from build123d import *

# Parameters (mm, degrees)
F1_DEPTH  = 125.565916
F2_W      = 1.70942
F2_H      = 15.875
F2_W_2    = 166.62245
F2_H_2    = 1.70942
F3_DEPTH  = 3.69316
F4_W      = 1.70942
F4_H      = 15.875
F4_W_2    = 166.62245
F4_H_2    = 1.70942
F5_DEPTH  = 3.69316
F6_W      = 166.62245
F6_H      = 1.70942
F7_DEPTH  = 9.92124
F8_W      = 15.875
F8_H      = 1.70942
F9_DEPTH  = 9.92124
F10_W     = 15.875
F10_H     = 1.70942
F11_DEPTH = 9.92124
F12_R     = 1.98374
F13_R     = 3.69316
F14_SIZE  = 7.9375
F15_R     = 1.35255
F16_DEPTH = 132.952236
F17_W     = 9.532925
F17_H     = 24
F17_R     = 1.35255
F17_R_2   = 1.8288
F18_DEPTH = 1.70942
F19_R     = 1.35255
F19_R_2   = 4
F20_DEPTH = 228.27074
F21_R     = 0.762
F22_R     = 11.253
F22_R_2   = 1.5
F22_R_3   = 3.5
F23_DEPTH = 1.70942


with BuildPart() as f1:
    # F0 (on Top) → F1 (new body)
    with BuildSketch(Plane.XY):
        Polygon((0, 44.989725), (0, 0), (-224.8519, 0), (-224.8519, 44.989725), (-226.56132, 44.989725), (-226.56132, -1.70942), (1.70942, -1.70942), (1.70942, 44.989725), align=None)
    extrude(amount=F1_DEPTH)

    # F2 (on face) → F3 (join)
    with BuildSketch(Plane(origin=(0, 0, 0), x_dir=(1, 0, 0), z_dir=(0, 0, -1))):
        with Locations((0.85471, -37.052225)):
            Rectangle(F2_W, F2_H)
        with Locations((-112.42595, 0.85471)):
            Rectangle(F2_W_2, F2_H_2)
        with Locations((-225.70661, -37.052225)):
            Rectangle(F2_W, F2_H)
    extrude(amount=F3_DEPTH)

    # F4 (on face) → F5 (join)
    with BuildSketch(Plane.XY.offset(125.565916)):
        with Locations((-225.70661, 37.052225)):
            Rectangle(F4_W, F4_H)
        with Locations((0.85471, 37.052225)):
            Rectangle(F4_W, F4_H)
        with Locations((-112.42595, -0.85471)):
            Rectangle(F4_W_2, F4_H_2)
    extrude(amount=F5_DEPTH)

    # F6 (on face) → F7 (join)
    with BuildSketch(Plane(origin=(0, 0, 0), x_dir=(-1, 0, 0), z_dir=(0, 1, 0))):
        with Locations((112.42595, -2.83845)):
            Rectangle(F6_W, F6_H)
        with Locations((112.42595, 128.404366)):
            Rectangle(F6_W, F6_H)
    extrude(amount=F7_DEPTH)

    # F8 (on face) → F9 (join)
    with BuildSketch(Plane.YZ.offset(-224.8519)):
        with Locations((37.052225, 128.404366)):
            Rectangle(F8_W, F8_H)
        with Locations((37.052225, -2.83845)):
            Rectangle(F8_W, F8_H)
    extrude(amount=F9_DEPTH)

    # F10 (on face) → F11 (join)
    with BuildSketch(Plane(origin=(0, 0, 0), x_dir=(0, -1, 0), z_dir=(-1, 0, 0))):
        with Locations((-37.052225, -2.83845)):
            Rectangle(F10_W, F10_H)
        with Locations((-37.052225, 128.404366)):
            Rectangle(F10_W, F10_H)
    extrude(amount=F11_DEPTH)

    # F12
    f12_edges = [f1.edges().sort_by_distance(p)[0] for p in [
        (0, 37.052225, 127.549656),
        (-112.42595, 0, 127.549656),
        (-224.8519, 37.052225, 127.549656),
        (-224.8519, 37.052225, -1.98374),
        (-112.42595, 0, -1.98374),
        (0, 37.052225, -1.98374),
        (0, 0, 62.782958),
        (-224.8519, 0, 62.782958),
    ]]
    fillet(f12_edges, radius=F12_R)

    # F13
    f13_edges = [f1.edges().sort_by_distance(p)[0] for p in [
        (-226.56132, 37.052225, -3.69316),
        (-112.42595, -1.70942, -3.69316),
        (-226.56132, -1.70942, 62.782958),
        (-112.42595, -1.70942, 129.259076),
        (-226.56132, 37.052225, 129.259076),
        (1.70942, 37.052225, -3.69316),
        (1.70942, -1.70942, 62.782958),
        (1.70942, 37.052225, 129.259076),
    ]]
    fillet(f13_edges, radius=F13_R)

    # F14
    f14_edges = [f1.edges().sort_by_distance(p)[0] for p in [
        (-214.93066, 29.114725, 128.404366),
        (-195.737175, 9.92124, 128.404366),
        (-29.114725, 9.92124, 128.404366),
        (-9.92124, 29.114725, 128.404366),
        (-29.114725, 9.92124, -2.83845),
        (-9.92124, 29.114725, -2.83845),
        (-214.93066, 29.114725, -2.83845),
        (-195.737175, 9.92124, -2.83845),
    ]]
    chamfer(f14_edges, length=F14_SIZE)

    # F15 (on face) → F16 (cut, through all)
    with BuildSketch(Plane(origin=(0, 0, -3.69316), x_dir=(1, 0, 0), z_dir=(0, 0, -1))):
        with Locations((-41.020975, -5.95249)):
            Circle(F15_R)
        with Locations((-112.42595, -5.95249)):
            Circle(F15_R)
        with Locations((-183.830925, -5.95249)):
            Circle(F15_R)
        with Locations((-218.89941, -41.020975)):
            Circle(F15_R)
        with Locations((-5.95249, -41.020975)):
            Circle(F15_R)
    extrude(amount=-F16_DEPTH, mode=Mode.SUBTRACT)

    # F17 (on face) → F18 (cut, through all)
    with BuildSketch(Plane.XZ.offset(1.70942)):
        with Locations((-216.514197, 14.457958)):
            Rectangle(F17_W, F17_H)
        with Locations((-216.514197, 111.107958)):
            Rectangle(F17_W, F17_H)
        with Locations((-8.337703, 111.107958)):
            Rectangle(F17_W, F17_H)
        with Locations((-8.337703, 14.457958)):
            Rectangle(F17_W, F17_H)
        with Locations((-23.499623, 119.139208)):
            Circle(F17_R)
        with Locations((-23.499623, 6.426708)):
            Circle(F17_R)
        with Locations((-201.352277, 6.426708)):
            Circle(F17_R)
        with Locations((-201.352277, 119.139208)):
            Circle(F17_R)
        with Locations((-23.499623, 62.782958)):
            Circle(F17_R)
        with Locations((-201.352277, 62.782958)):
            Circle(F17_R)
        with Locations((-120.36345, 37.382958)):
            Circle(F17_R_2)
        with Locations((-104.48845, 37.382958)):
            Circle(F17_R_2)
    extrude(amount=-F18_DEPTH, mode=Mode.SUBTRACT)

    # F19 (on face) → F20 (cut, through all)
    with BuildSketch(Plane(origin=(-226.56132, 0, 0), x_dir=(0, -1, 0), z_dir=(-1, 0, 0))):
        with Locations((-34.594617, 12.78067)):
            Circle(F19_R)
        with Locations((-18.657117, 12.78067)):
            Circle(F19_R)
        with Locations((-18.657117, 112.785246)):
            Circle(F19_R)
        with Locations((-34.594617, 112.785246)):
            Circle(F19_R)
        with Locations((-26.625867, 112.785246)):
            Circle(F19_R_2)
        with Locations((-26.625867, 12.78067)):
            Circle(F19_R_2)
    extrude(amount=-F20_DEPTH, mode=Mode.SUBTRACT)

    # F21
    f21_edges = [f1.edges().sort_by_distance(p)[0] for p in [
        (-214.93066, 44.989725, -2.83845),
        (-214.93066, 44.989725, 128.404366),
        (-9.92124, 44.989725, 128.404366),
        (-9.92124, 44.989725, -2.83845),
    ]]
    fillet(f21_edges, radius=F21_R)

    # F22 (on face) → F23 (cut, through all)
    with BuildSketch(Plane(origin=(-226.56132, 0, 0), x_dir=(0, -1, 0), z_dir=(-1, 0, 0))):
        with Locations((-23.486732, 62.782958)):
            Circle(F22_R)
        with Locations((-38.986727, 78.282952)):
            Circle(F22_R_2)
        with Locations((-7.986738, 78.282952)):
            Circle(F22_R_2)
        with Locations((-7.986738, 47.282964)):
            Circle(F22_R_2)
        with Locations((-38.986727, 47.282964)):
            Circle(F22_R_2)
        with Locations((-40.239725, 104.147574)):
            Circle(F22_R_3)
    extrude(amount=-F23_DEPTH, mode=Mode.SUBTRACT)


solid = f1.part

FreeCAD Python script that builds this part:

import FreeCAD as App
import Part
import Sketcher
Q = App.Units.Quantity


def edges_at(feature, points):
    """Names of the edges that pass closest to the given points."""
    edges = feature.Shape.Edges
    near = lambda p: min(range(len(edges)), key=lambda i: edges[i].distToShape(Part.Vertex(*p))[0])
    return sorted({f"Edge{near(p) + 1}" for p in points})

doc = App.newDocument("Part")
params = doc.addObject("Spreadsheet::Sheet", "Params")
for row, (alias, value) in enumerate([
    ("pad1_length", "125.565916 mm"),
    ("pad2_length", "3.69316 mm"),
    ("pad3_length", "3.69316 mm"),
    ("pad4_length", "9.92124 mm"),
    ("pad5_length", "9.92124 mm"),
    ("pad6_length", "9.92124 mm"),
    ("fillet_radius", "1.98374 mm"),
    ("fillet2_radius", "3.69316 mm"),
    ("chamfer_size", "7.9375 mm"),
    ("sketch8_height", "24 mm"),
    ("sketch9_diameter", "8 mm"),
    ("fillet3_radius", "0.762 mm"),
    ("sketch10_diameter", "3 mm"),
    ("sketch10_diameter2", "7 mm"),
    ("pocket4_length", "1.70942 mm"),
], start=1):
    params.set(f"A{row}", alias)
    params.set(f"B{row}", "=" + value)
    params.setAlias(f"B{row}", alias)

body = doc.addObject("PartDesign::Body", "Body")

# Sketch on XY plane
sketch1 = body.newObject("Sketcher::SketchObject", "Sketch")
sketch1.AttachmentSupport = (doc.getObject("XY_Plane"), [""])
sketch1.MapMode = "FlatFace"
sketch1.addGeometry(Part.LineSegment(App.Vector(0, 45, 0), App.Vector(0, 0, 0)), False)
sketch1.addGeometry(Part.LineSegment(App.Vector(0, 0, 0), App.Vector(-224.9, 0, 0)), False)
sketch1.addGeometry(Part.LineSegment(App.Vector(-224.9, 0, 0), App.Vector(-224.9, 45, 0)), False)
sketch1.addGeometry(Part.LineSegment(App.Vector(-224.9, 45, 0), App.Vector(-226.6, 45, 0)), False)
sketch1.addGeometry(Part.LineSegment(App.Vector(-226.6, 45, 0), App.Vector(-226.6, -1.7, 0)), False)
sketch1.addGeometry(Part.LineSegment(App.Vector(-226.6, -1.7, 0), App.Vector(1.7, -1.7, 0)), False)
sketch1.addGeometry(Part.LineSegment(App.Vector(1.7, -1.7, 0), App.Vector(1.7, 45, 0)), False)
sketch1.addGeometry(Part.LineSegment(App.Vector(1.7, 45, 0), App.Vector(0, 45, 0)), False)
sketch1.addConstraint(Sketcher.Constraint("Coincident", 0, 2, 1, 1))
sketch1.addConstraint(Sketcher.Constraint("Coincident", 1, 2, 2, 1))
sketch1.addConstraint(Sketcher.Constraint("Coincident", 2, 2, 3, 1))
sketch1.addConstraint(Sketcher.Constraint("Coincident", 3, 2, 4, 1))
sketch1.addConstraint(Sketcher.Constraint("Coincident", 4, 2, 5, 1))
sketch1.addConstraint(Sketcher.Constraint("Coincident", 5, 2, 6, 1))
sketch1.addConstraint(Sketcher.Constraint("Coincident", 6, 2, 7, 1))
sketch1.addConstraint(Sketcher.Constraint("Coincident", 7, 2, 0, 1))
sketch1.addConstraint(Sketcher.Constraint("Vertical", 0))
sketch1.addConstraint(Sketcher.Constraint("Horizontal", 1))
sketch1.addConstraint(Sketcher.Constraint("Vertical", 2))
sketch1.addConstraint(Sketcher.Constraint("Horizontal", 3))
sketch1.addConstraint(Sketcher.Constraint("Vertical", 4))
sketch1.addConstraint(Sketcher.Constraint("Horizontal", 5))
sketch1.addConstraint(Sketcher.Constraint("Vertical", 6))
sketch1.addConstraint(Sketcher.Constraint("Horizontal", 7))
sketch1.addConstraint(Sketcher.Constraint("Coincident", 0, 2, -1, 1))
sketch1.addConstraint(Sketcher.Constraint("Horizontal", 3, 2, 6, 2))
sketch1.addConstraint(Sketcher.Constraint("Equal", 3, 7))
sketch1.addConstraint(Sketcher.Constraint("DistanceX", 1, 2, 1, 1, Q("224.8519 mm")))
sketch1.addConstraint(Sketcher.Constraint("DistanceX", 3, 2, 3, 1, Q("1.70942 mm")))
sketch1.addConstraint(Sketcher.Constraint("DistanceY", 0, 2, 0, 1, Q("44.989725 mm")))
sketch1.addConstraint(Sketcher.Constraint("DistanceY", 4, 2, 4, 1, Q("46.699145 mm")))
pad1 = body.newObject("PartDesign::Pad", "Pad")
pad1.Profile = sketch1
pad1.setExpression("Length", "Params.pad1_length")

# Sketch on XY plane
sketch2 = body.newObject("Sketcher::SketchObject", "Sketch001")
sketch2.AttachmentSupport = (doc.getObject("XY_Plane"), [""])
sketch2.MapMode = "FlatFace"
sketch2.addGeometry(Part.LineSegment(App.Vector(0, 29.1, 0), App.Vector(0, 45, 0)), False)
sketch2.addGeometry(Part.LineSegment(App.Vector(0, 45, 0), App.Vector(1.7, 45, 0)), False)
sketch2.addGeometry(Part.LineSegment(App.Vector(1.7, 45, 0), App.Vector(1.7, 29.1, 0)), False)
sketch2.addGeometry(Part.LineSegment(App.Vector(1.7, 29.1, 0), App.Vector(0, 29.1, 0)), False)
sketch2.addGeometry(Part.LineSegment(App.Vector(-195.7, -1.7, 0), App.Vector(-195.7, 0, 0)), False)
sketch2.addGeometry(Part.LineSegment(App.Vector(-195.7, 0, 0), App.Vector(-29.1, 0, 0)), False)
sketch2.addGeometry(Part.LineSegment(App.Vector(-29.1, 0, 0), App.Vector(-29.1, -1.7, 0)), False)
sketch2.addGeometry(Part.LineSegment(App.Vector(-29.1, -1.7, 0), App.Vector(-195.7, -1.7, 0)), False)
sketch2.addGeometry(Part.LineSegment(App.Vector(-226.6, 29.1, 0), App.Vector(-226.6, 45, 0)), False)
sketch2.addGeometry(Part.LineSegment(App.Vector(-226.6, 45, 0), App.Vector(-224.9, 45, 0)), False)
sketch2.addGeometry(Part.LineSegment(App.Vector(-224.9, 45, 0), App.Vector(-224.9, 29.1, 0)), False)
sketch2.addGeometry(Part.LineSegment(App.Vector(-224.9, 29.1, 0), App.Vector(-226.6, 29.1, 0)), False)
sketch2.addConstraint(Sketcher.Constraint("Coincident", 0, 2, 1, 1))
sketch2.addConstraint(Sketcher.Constraint("Coincident", 1, 2, 2, 1))
sketch2.addConstraint(Sketcher.Constraint("Coincident", 2, 2, 3, 1))
sketch2.addConstraint(Sketcher.Constraint("Coincident", 3, 2, 0, 1))
sketch2.addConstraint(Sketcher.Constraint("Coincident", 4, 2, 5, 1))
sketch2.addConstraint(Sketcher.Constraint("Coincident", 5, 2, 6, 1))
sketch2.addConstraint(Sketcher.Constraint("Coincident", 6, 2, 7, 1))
sketch2.addConstraint(Sketcher.Constraint("Coincident", 7, 2, 4, 1))
sketch2.addConstraint(Sketcher.Constraint("Coincident", 8, 2, 9, 1))
sketch2.addConstraint(Sketcher.Constraint("Coincident", 9, 2, 10, 1))
sketch2.addConstraint(Sketcher.Constraint("Coincident", 10, 2, 11, 1))
sketch2.addConstraint(Sketcher.Constraint("Coincident", 11, 2, 8, 1))
sketch2.addConstraint(Sketcher.Constraint("Vertical", 0))
sketch2.addConstraint(Sketcher.Constraint("Horizontal", 1))
sketch2.addConstraint(Sketcher.Constraint("Vertical", 2))
sketch2.addConstraint(Sketcher.Constraint("Horizontal", 3))
sketch2.addConstraint(Sketcher.Constraint("Vertical", 4))
sketch2.addConstraint(Sketcher.Constraint("Horizontal", 5))
sketch2.addConstraint(Sketcher.Constraint("Vertical", 6))
sketch2.addConstraint(Sketcher.Constraint("Horizontal", 7))
sketch2.addConstraint(Sketcher.Constraint("Vertical", 8))
sketch2.addConstraint(Sketcher.Constraint("Horizontal", 9))
sketch2.addConstraint(Sketcher.Constraint("Vertical", 10))
sketch2.addConstraint(Sketcher.Constraint("Horizontal", 11))
sketch2.addConstraint(Sketcher.Constraint("PointOnObject", 0, 2, -2))
sketch2.addConstraint(Sketcher.Constraint("PointOnObject", 4, 2, -1))
sketch2.addConstraint(Sketcher.Constraint("Horizontal", 1, 2, 8, 2))
sketch2.addConstraint(Sketcher.Constraint("Horizontal", 3, 2, 10, 2))
sketch2.addConstraint(Sketcher.Constraint("Equal", 3, 9))
sketch2.addConstraint(Sketcher.Constraint("Equal", 11, 4))
sketch2.addConstraint(Sketcher.Constraint("DistanceY", 0, 1, 0, 2, Q("15.875 mm")))
sketch2.addConstraint(Sketcher.Constraint("DistanceX", 1, 1, 1, 2, Q("1.70942 mm")))
sketch2.addConstraint(Sketcher.Constraint("DistanceX", 5, 1, 5, 2, Q("166.62245 mm")))
sketch2.addConstraint(Sketcher.Constraint("DistanceX", 9, 2, -1, 1, Q("224.8519 mm")))
sketch2.addConstraint(Sketcher.Constraint("DistanceY", -1, 1, 0, 2, Q("44.989725 mm")))
sketch2.addConstraint(Sketcher.Constraint("DistanceX", 4, 2, -1, 1, Q("195.737175 mm")))
pad2 = body.newObject("PartDesign::Pad", "Pad001")
pad2.Profile = sketch2
pad2.setExpression("Length", "Params.pad2_length")
pad2.Reversed = True

# Sketch on XY plane
sketch3 = body.newObject("Sketcher::SketchObject", "Sketch002")
sketch3.AttachmentSupport = (doc.getObject("XY_Plane"), [""])
sketch3.MapMode = "FlatFace"
sketch3.AttachmentOffset = App.Placement(App.Vector(0, 0, 125.565916), App.Rotation())
sketch3.addGeometry(Part.LineSegment(App.Vector(-226.6, 45, 0), App.Vector(-226.6, 29.1, 0)), False)
sketch3.addGeometry(Part.LineSegment(App.Vector(-226.6, 29.1, 0), App.Vector(-224.9, 29.1, 0)), False)
sketch3.addGeometry(Part.LineSegment(App.Vector(-224.9, 29.1, 0), App.Vector(-224.9, 45, 0)), False)
sketch3.addGeometry(Part.LineSegment(App.Vector(-224.9, 45, 0), App.Vector(-226.6, 45, 0)), False)
sketch3.addGeometry(Part.LineSegment(App.Vector(0, 45, 0), App.Vector(0, 29.1, 0)), False)
sketch3.addGeometry(Part.LineSegment(App.Vector(0, 29.1, 0), App.Vector(1.7, 29.1, 0)), False)
sketch3.addGeometry(Part.LineSegment(App.Vector(1.7, 29.1, 0), App.Vector(1.7, 45, 0)), False)
sketch3.addGeometry(Part.LineSegment(App.Vector(1.7, 45, 0), App.Vector(0, 45, 0)), False)
sketch3.addGeometry(Part.LineSegment(App.Vector(-195.7, 0, 0), App.Vector(-195.7, -1.7, 0)), False)
sketch3.addGeometry(Part.LineSegment(App.Vector(-195.7, -1.7, 0), App.Vector(-29.1, -1.7, 0)), False)
sketch3.addGeometry(Part.LineSegment(App.Vector(-29.1, -1.7, 0), App.Vector(-29.1, 0, 0)), False)
sketch3.addGeometry(Part.LineSegment(App.Vector(-29.1, 0, 0), App.Vector(-195.7, 0, 0)), False)
sketch3.addConstraint(Sketcher.Constraint("Coincident", 0, 2, 1, 1))
sketch3.addConstraint(Sketcher.Constraint("Coincident", 1, 2, 2, 1))
sketch3.addConstraint(Sketcher.Constraint("Coincident", 2, 2, 3, 1))
sketch3.addConstraint(Sketcher.Constraint("Coincident", 3, 2, 0, 1))
sketch3.addConstraint(Sketcher.Constraint("Coincident", 4, 2, 5, 1))
sketch3.addConstraint(Sketcher.Constraint("Coincident", 5, 2, 6, 1))
sketch3.addConstraint(Sketcher.Constraint("Coincident", 6, 2, 7, 1))
sketch3.addConstraint(Sketcher.Constraint("Coincident", 7, 2, 4, 1))
sketch3.addConstraint(Sketcher.Constraint("Coincident", 8, 2, 9, 1))
sketch3.addConstraint(Sketcher.Constraint("Coincident", 9, 2, 10, 1))
sketch3.addConstraint(Sketcher.Constraint("Coincident", 10, 2, 11, 1))
sketch3.addConstraint(Sketcher.Constraint("Coincident", 11, 2, 8, 1))
sketch3.addConstraint(Sketcher.Constraint("Vertical", 0))
sketch3.addConstraint(Sketcher.Constraint("Horizontal", 1))
sketch3.addConstraint(Sketcher.Constraint("Vertical", 2))
sketch3.addConstraint(Sketcher.Constraint("Horizontal", 3))
sketch3.addConstraint(Sketcher.Constraint("Vertical", 4))
sketch3.addConstraint(Sketcher.Constraint("Horizontal", 5))
sketch3.addConstraint(Sketcher.Constraint("Vertical", 6))
sketch3.addConstraint(Sketcher.Constraint("Horizontal", 7))
sketch3.addConstraint(Sketcher.Constraint("Vertical", 8))
sketch3.addConstraint(Sketcher.Constraint("Horizontal", 9))
sketch3.addConstraint(Sketcher.Constraint("Vertical", 10))
sketch3.addConstraint(Sketcher.Constraint("Horizontal", 11))
sketch3.addConstraint(Sketcher.Constraint("PointOnObject", 4, 2, -2))
sketch3.addConstraint(Sketcher.Constraint("PointOnObject", 10, 2, -1))
sketch3.addConstraint(Sketcher.Constraint("Horizontal", 1, 2, 4, 2))
sketch3.addConstraint(Sketcher.Constraint("Horizontal", 3, 2, 6, 2))
sketch3.addConstraint(Sketcher.Constraint("Equal", 3, 5))
sketch3.addConstraint(Sketcher.Constraint("Equal", 7, 8))
sketch3.addConstraint(Sketcher.Constraint("DistanceY", 0, 2, 0, 1, Q("15.875 mm")))
sketch3.addConstraint(Sketcher.Constraint("DistanceX", 1, 1, 1, 2, Q("1.70942 mm")))
sketch3.addConstraint(Sketcher.Constraint("DistanceX", 9, 1, 9, 2, Q("166.62245 mm")))
sketch3.addConstraint(Sketcher.Constraint("DistanceX", 1, 2, -1, 1, Q("224.8519 mm")))
sketch3.addConstraint(Sketcher.Constraint("DistanceY", -1, 1, 0, 2, Q("29.114725 mm")))
sketch3.addConstraint(Sketcher.Constraint("DistanceX", 8, 2, -1, 1, Q("195.737175 mm")))
pad3 = body.newObject("PartDesign::Pad", "Pad002")
pad3.Profile = sketch3
pad3.setExpression("Length", "Params.pad3_length")

# Sketch on XZ plane
sketch4 = body.newObject("Sketcher::SketchObject", "Sketch003")
sketch4.AttachmentSupport = (doc.getObject("XZ_Plane"), [""])
sketch4.MapMode = "FlatFace"
sketch4.addGeometry(Part.LineSegment(App.Vector(-29.1, -2, 0), App.Vector(-29.1, -3.7, 0)), False)
sketch4.addGeometry(Part.LineSegment(App.Vector(-29.1, -3.7, 0), App.Vector(-195.7, -3.7, 0)), False)
sketch4.addGeometry(Part.LineSegment(App.Vector(-195.7, -3.7, 0), App.Vector(-195.7, -2, 0)), False)
sketch4.addGeometry(Part.LineSegment(App.Vector(-195.7, -2, 0), App.Vector(-29.1, -2, 0)), False)
sketch4.addGeometry(Part.LineSegment(App.Vector(-29.1, 129.3, 0), App.Vector(-29.1, 127.5, 0)), False)
sketch4.addGeometry(Part.LineSegment(App.Vector(-29.1, 127.5, 0), App.Vector(-195.7, 127.5, 0)), False)
sketch4.addGeometry(Part.LineSegment(App.Vector(-195.7, 127.5, 0), App.Vector(-195.7, 129.3, 0)), False)
sketch4.addGeometry(Part.LineSegment(App.Vector(-195.7, 129.3, 0), App.Vector(-29.1, 129.3, 0)), False)
sketch4.addConstraint(Sketcher.Constraint("Coincident", 0, 2, 1, 1))
sketch4.addConstraint(Sketcher.Constraint("Coincident", 1, 2, 2, 1))
sketch4.addConstraint(Sketcher.Constraint("Coincident", 2, 2, 3, 1))
sketch4.addConstraint(Sketcher.Constraint("Coincident", 3, 2, 0, 1))
sketch4.addConstraint(Sketcher.Constraint("Coincident", 4, 2, 5, 1))
sketch4.addConstraint(Sketcher.Constraint("Coincident", 5, 2, 6, 1))
sketch4.addConstraint(Sketcher.Constraint("Coincident", 6, 2, 7, 1))
sketch4.addConstraint(Sketcher.Constraint("Coincident", 7, 2, 4, 1))
sketch4.addConstraint(Sketcher.Constraint("Vertical", 0))
sketch4.addConstraint(Sketcher.Constraint("Horizontal", 1))
sketch4.addConstraint(Sketcher.Constraint("Vertical", 2))
sketch4.addConstraint(Sketcher.Constraint("Horizontal", 3))
sketch4.addConstraint(Sketcher.Constraint("Vertical", 4))
sketch4.addConstraint(Sketcher.Constraint("Horizontal", 5))
sketch4.addConstraint(Sketcher.Constraint("Vertical", 6))
sketch4.addConstraint(Sketcher.Constraint("Horizontal", 7))
sketch4.addConstraint(Sketcher.Constraint("Vertical", 3, 2, 4, 2))
sketch4.addConstraint(Sketcher.Constraint("Vertical", 2, 2, 5, 2))
sketch4.addConstraint(Sketcher.Constraint("Equal", 2, 4))
sketch4.addConstraint(Sketcher.Constraint("DistanceX", 1, 2, 1, 1, Q("166.62245 mm")))
sketch4.addConstraint(Sketcher.Constraint("DistanceY", 0, 2, 0, 1, Q("1.70942 mm")))
sketch4.addConstraint(Sketcher.Constraint("DistanceY", 0, 2, -1, 1, Q("3.69316 mm")))
sketch4.addConstraint(Sketcher.Constraint("DistanceX", 0, 2, -1, 1, Q("29.114725 mm")))
sketch4.addConstraint(Sketcher.Constraint("DistanceY", -1, 1, 4, 2, Q("127.549656 mm")))
pad4 = body.newObject("PartDesign::Pad", "Pad003")
pad4.Profile = sketch4
pad4.setExpression("Length", "Params.pad4_length")
pad4.Reversed = True

# Sketch on YZ plane
sketch5 = body.newObject("Sketcher::SketchObject", "Sketch004")
sketch5.AttachmentSupport = (doc.getObject("YZ_Plane"), [""])
sketch5.MapMode = "FlatFace"
sketch5.AttachmentOffset = App.Placement(App.Vector(0, 0, -224.8519), App.Rotation())
sketch5.addGeometry(Part.LineSegment(App.Vector(29.1, 129.3, 0), App.Vector(29.1, 127.5, 0)), False)
sketch5.addGeometry(Part.LineSegment(App.Vector(29.1, 127.5, 0), App.Vector(45, 127.5, 0)), False)
sketch5.addGeometry(Part.LineSegment(App.Vector(45, 127.5, 0), App.Vector(45, 129.3, 0)), False)
sketch5.addGeometry(Part.LineSegment(App.Vector(45, 129.3, 0), App.Vector(29.1, 129.3, 0)), False)
sketch5.addGeometry(Part.LineSegment(App.Vector(29.1, -2, 0), App.Vector(29.1, -3.7, 0)), False)
sketch5.addGeometry(Part.LineSegment(App.Vector(29.1, -3.7, 0), App.Vector(45, -3.7, 0)), False)
sketch5.addGeometry(Part.LineSegment(App.Vector(45, -3.7, 0), App.Vector(45, -2, 0)), False)
sketch5.addGeometry(Part.LineSegment(App.Vector(45, -2, 0), App.Vector(29.1, -2, 0)), False)
sketch5.addConstraint(Sketcher.Constraint("Coincident", 0, 2, 1, 1))
sketch5.addConstraint(Sketcher.Constraint("Coincident", 1, 2, 2, 1))
sketch5.addConstraint(Sketcher.Constraint("Coincident", 2, 2, 3, 1))
sketch5.addConstraint(Sketcher.Constraint("Coincident", 3, 2, 0, 1))
sketch5.addConstraint(Sketcher.Constraint("Coincident", 4, 2, 5, 1))
sketch5.addConstraint(Sketcher.Constraint("Coincident", 5, 2, 6, 1))
sketch5.addConstraint(Sketcher.Constraint("Coincident", 6, 2, 7, 1))
sketch5.addConstraint(Sketcher.Constraint("Coincident", 7, 2, 4, 1))
sketch5.addConstraint(Sketcher.Constraint("Vertical", 0))
sketch5.addConstraint(Sketcher.Constraint("Horizontal", 1))
sketch5.addConstraint(Sketcher.Constraint("Vertical", 2))
sketch5.addConstraint(Sketcher.Constraint("Horizontal", 3))
sketch5.addConstraint(Sketcher.Constraint("Vertical", 4))
sketch5.addConstraint(Sketcher.Constraint("Horizontal", 5))
sketch5.addConstraint(Sketcher.Constraint("Vertical", 6))
sketch5.addConstraint(Sketcher.Constraint("Horizontal", 7))
sketch5.addConstraint(Sketcher.Constraint("Vertical", 3, 2, 4, 2))
sketch5.addConstraint(Sketcher.Constraint("Vertical", 2, 2, 5, 2))
sketch5.addConstraint(Sketcher.Constraint("Equal", 2, 4))
sketch5.addConstraint(Sketcher.Constraint("DistanceX", 1, 1, 1, 2, Q("15.875 mm")))
sketch5.addConstraint(Sketcher.Constraint("DistanceY", 0, 2, 0, 1, Q("1.70942 mm")))
sketch5.addConstraint(Sketcher.Constraint("DistanceY", 4, 2, -1, 1, Q("3.69316 mm")))
sketch5.addConstraint(Sketcher.Constraint("DistanceX", -1, 1, 0, 2, Q("29.114725 mm")))
sketch5.addConstraint(Sketcher.Constraint("DistanceY", -1, 1, 0, 2, Q("127.549656 mm")))
pad5 = body.newObject("PartDesign::Pad", "Pad004")
pad5.Profile = sketch5
pad5.setExpression("Length", "Params.pad5_length")

# Sketch on YZ plane
sketch6 = body.newObject("Sketcher::SketchObject", "Sketch005")
sketch6.AttachmentSupport = (doc.getObject("YZ_Plane"), [""])
sketch6.MapMode = "FlatFace"
sketch6.addGeometry(Part.LineSegment(App.Vector(45, -2, 0), App.Vector(45, -3.7, 0)), False)
sketch6.addGeometry(Part.LineSegment(App.Vector(45, -3.7, 0), App.Vector(29.1, -3.7, 0)), False)
sketch6.addGeometry(Part.LineSegment(App.Vector(29.1, -3.7, 0), App.Vector(29.1, -2, 0)), False)
sketch6.addGeometry(Part.LineSegment(App.Vector(29.1, -2, 0), App.Vector(45, -2, 0)), False)
sketch6.addGeometry(Part.LineSegment(App.Vector(45, 129.3, 0), App.Vector(45, 127.5, 0)), False)
sketch6.addGeometry(Part.LineSegment(App.Vector(45, 127.5, 0), App.Vector(29.1, 127.5, 0)), False)
sketch6.addGeometry(Part.LineSegment(App.Vector(29.1, 127.5, 0), App.Vector(29.1, 129.3, 0)), False)
sketch6.addGeometry(Part.LineSegment(App.Vector(29.1, 129.3, 0), App.Vector(45, 129.3, 0)), False)
sketch6.addConstraint(Sketcher.Constraint("Coincident", 0, 2, 1, 1))
sketch6.addConstraint(Sketcher.Constraint("Coincident", 1, 2, 2, 1))
sketch6.addConstraint(Sketcher.Constraint("Coincident", 2, 2, 3, 1))
sketch6.addConstraint(Sketcher.Constraint("Coincident", 3, 2, 0, 1))
sketch6.addConstraint(Sketcher.Constraint("Coincident", 4, 2, 5, 1))
sketch6.addConstraint(Sketcher.Constraint("Coincident", 5, 2, 6, 1))
sketch6.addConstraint(Sketcher.Constraint("Coincident", 6, 2, 7, 1))
sketch6.addConstraint(Sketcher.Constraint("Coincident", 7, 2, 4, 1))
sketch6.addConstraint(Sketcher.Constraint("Vertical", 0))
sketch6.addConstraint(Sketcher.Constraint("Horizontal", 1))
sketch6.addConstraint(Sketcher.Constraint("Vertical", 2))
sketch6.addConstraint(Sketcher.Constraint("Horizontal", 3))
sketch6.addConstraint(Sketcher.Constraint("Vertical", 4))
sketch6.addConstraint(Sketcher.Constraint("Horizontal", 5))
sketch6.addConstraint(Sketcher.Constraint("Vertical", 6))
sketch6.addConstraint(Sketcher.Constraint("Horizontal", 7))
sketch6.addConstraint(Sketcher.Constraint("Vertical", 3, 2, 4, 2))
sketch6.addConstraint(Sketcher.Constraint("Vertical", 2, 2, 5, 2))
sketch6.addConstraint(Sketcher.Constraint("Equal", 2, 4))
sketch6.addConstraint(Sketcher.Constraint("DistanceX", 1, 2, 1, 1, Q("15.875 mm")))
sketch6.addConstraint(Sketcher.Constraint("DistanceY", 0, 2, 0, 1, Q("1.70942 mm")))
sketch6.addConstraint(Sketcher.Constraint("DistanceY", 0, 2, -1, 1, Q("3.69316 mm")))
sketch6.addConstraint(Sketcher.Constraint("DistanceX", -1, 1, 0, 2, Q("44.989725 mm")))
sketch6.addConstraint(Sketcher.Constraint("DistanceY", -1, 1, 4, 2, Q("127.549656 mm")))
pad6 = body.newObject("PartDesign::Pad", "Pad005")
pad6.Profile = sketch6
pad6.setExpression("Length", "Params.pad6_length")
pad6.Reversed = True
doc.recompute()

fillet = body.newObject("PartDesign::Fillet", "Fillet")
fillet.Base = (pad6, edges_at(pad6, [
    (0, 37.052, 127.55),
    (-112.426, 0, 127.55),
    (-224.852, 37.052, 127.55),
    (-224.852, 37.052, -1.984),
    (-112.426, 0, -1.984),
    (0, 37.052, -1.984),
    (0, 0, 62.783),
    (-224.852, 0, 62.783),
]))
fillet.setExpression("Radius", "Params.fillet_radius")
doc.recompute()

fillet2 = body.newObject("PartDesign::Fillet", "Fillet001")
fillet2.Base = (fillet, edges_at(fillet, [
    (-226.561, 37.052, -3.693),
    (-112.426, -1.709, -3.693),
    (-226.561, -1.709, 62.783),
    (-112.426, -1.709, 129.259),
    (-226.561, 37.052, 129.259),
    (1.709, 37.052, -3.693),
    (1.709, -1.709, 62.783),
    (1.709, 37.052, 129.259),
]))
fillet2.setExpression("Radius", "Params.fillet2_radius")
doc.recompute()

chamfer = body.newObject("PartDesign::Chamfer", "Chamfer")
chamfer.Base = (fillet2, edges_at(fillet2, [
    (-214.931, 29.115, 128.404),
    (-195.737, 9.921, 128.404),
    (-29.115, 9.921, 128.404),
    (-9.921, 29.115, 128.404),
    (-29.115, 9.921, -2.838),
    (-9.921, 29.115, -2.838),
    (-214.931, 29.115, -2.838),
    (-195.737, 9.921, -2.838),
]))
chamfer.setExpression("Size", "Params.chamfer_size")

# Sketch on XY plane
sketch7 = body.newObject("Sketcher::SketchObject", "Sketch006")
sketch7.AttachmentSupport = (doc.getObject("XY_Plane"), [""])
sketch7.MapMode = "FlatFace"
sketch7.AttachmentOffset = App.Placement(App.Vector(0, 0, -3.69316), App.Rotation())
sketch7.addGeometry(Part.Circle(App.Vector(-41, 6, 0), App.Vector(0, 0, 1), 1.4), False)
sketch7.addGeometry(Part.Circle(App.Vector(-112.4, 6, 0), App.Vector(0, 0, 1), 1.4), False)
sketch7.addGeometry(Part.Circle(App.Vector(-183.8, 6, 0), App.Vector(0, 0, 1), 1.4), False)
sketch7.addGeometry(Part.Circle(App.Vector(-218.9, 41, 0), App.Vector(0, 0, 1), 1.4), False)
sketch7.addGeometry(Part.Circle(App.Vector(-6, 41, 0), App.Vector(0, 0, 1), 1.4), False)
sketch7.addConstraint(Sketcher.Constraint("Equal", 0, 1))
sketch7.addConstraint(Sketcher.Constraint("Equal", 1, 2))
sketch7.addConstraint(Sketcher.Constraint("Equal", 2, 3))
sketch7.addConstraint(Sketcher.Constraint("Equal", 3, 4))
sketch7.addConstraint(Sketcher.Constraint("Horizontal", 0, 3, 1, 3))
sketch7.addConstraint(Sketcher.Constraint("Horizontal", 1, 3, 2, 3))
sketch7.addConstraint(Sketcher.Constraint("Horizontal", 3, 3, 4, 3))
sketch7.addConstraint(Sketcher.Constraint("Diameter", 0, Q("2.7051 mm")))
sketch7.addConstraint(Sketcher.Constraint("DistanceY", -1, 1, 0, 3, Q("5.95249 mm")))
sketch7.addConstraint(Sketcher.Constraint("DistanceX", 1, 3, -1, 1, Q("112.42595 mm")))
sketch7.addConstraint(Sketcher.Constraint("DistanceX", 3, 3, -1, 1, Q("218.89941 mm")))
sketch7.addConstraint(Sketcher.Constraint("DistanceX", 4, 3, -1, 1, Q("5.95249 mm")))
sketch7.addConstraint(Sketcher.Constraint("DistanceX", 2, 3, 0, 3, Q("142.80995 mm")))
sketch7.addConstraint(Sketcher.Constraint("DistanceX", 0, 3, -1, 1, Q("41.020975 mm")))
sketch7.addConstraint(Sketcher.Constraint("DistanceY", -1, 1, 3, 3, Q("41.020975 mm")))
pocket1 = body.newObject("PartDesign::Pocket", "Pocket")
pocket1.Profile = sketch7
pocket1.Type = "ThroughAll"
pocket1.Reversed = True

# Sketch on XZ plane
sketch8 = body.newObject("Sketcher::SketchObject", "Sketch007")
sketch8.AttachmentSupport = (doc.getObject("XZ_Plane"), [""])
sketch8.MapMode = "FlatFace"
sketch8.AttachmentOffset = App.Placement(App.Vector(0, 0, 1.70942), App.Rotation())
sketch8.addGeometry(Part.LineSegment(App.Vector(-221.3, 26.5, 0), App.Vector(-221.3, 2.5, 0)), False)
sketch8.addGeometry(Part.LineSegment(App.Vector(-221.3, 2.5, 0), App.Vector(-211.7, 2.5, 0)), False)
sketch8.addGeometry(Part.LineSegment(App.Vector(-211.7, 2.5, 0), App.Vector(-211.7, 26.5, 0)), False)
sketch8.addGeometry(Part.LineSegment(App.Vector(-211.7, 26.5, 0), App.Vector(-221.3, 26.5, 0)), False)
sketch8.addGeometry(Part.LineSegment(App.Vector(-221.3, 123.1, 0), App.Vector(-221.3, 99.1, 0)), False)
sketch8.addGeometry(Part.LineSegment(App.Vector(-221.3, 99.1, 0), App.Vector(-211.7, 99.1, 0)), False)
sketch8.addGeometry(Part.LineSegment(App.Vector(-211.7, 99.1, 0), App.Vector(-211.7, 123.1, 0)), False)
sketch8.addGeometry(Part.LineSegment(App.Vector(-211.7, 123.1, 0), App.Vector(-221.3, 123.1, 0)), False)
sketch8.addGeometry(Part.LineSegment(App.Vector(-13.1, 123.1, 0), App.Vector(-13.1, 99.1, 0)), False)
sketch8.addGeometry(Part.LineSegment(App.Vector(-13.1, 99.1, 0), App.Vector(-3.6, 99.1, 0)), False)
sketch8.addGeometry(Part.LineSegment(App.Vector(-3.6, 99.1, 0), App.Vector(-3.6, 123.1, 0)), False)
sketch8.addGeometry(Part.LineSegment(App.Vector(-3.6, 123.1, 0), App.Vector(-13.1, 123.1, 0)), False)
sketch8.addGeometry(Part.LineSegment(App.Vector(-13.1, 26.5, 0), App.Vector(-13.1, 2.5, 0)), False)
sketch8.addGeometry(Part.LineSegment(App.Vector(-13.1, 2.5, 0), App.Vector(-3.6, 2.5, 0)), False)
sketch8.addGeometry(Part.LineSegment(App.Vector(-3.6, 2.5, 0), App.Vector(-3.6, 26.5, 0)), False)
sketch8.addGeometry(Part.LineSegment(App.Vector(-3.6, 26.5, 0), App.Vector(-13.1, 26.5, 0)), False)
sketch8.addGeometry(Part.Circle(App.Vector(-23.5, 119.1, 0), App.Vector(0, 0, 1), 1.4), False)
sketch8.addGeometry(Part.Circle(App.Vector(-23.5, 6.4, 0), App.Vector(0, 0, 1), 1.4), False)
sketch8.addGeometry(Part.Circle(App.Vector(-201.4, 6.4, 0), App.Vector(0, 0, 1), 1.4), False)
sketch8.addGeometry(Part.Circle(App.Vector(-201.4, 119.1, 0), App.Vector(0, 0, 1), 1.4), False)
sketch8.addGeometry(Part.Circle(App.Vector(-23.5, 62.8, 0), App.Vector(0, 0, 1), 1.4), False)
sketch8.addGeometry(Part.Circle(App.Vector(-201.4, 62.8, 0), App.Vector(0, 0, 1), 1.4), False)
sketch8.addGeometry(Part.Circle(App.Vector(-120.4, 37.4, 0), App.Vector(0, 0, 1), 1.8), False)
sketch8.addGeometry(Part.Circle(App.Vector(-104.5, 37.4, 0), App.Vector(0, 0, 1), 1.8), False)
sketch8.addConstraint(Sketcher.Constraint("Coincident", 0, 2, 1, 1))
sketch8.addConstraint(Sketcher.Constraint("Coincident", 1, 2, 2, 1))
sketch8.addConstraint(Sketcher.Constraint("Coincident", 2, 2, 3, 1))
sketch8.addConstraint(Sketcher.Constraint("Coincident", 3, 2, 0, 1))
sketch8.addConstraint(Sketcher.Constraint("Coincident", 4, 2, 5, 1))
sketch8.addConstraint(Sketcher.Constraint("Coincident", 5, 2, 6, 1))
sketch8.addConstraint(Sketcher.Constraint("Coincident", 6, 2, 7, 1))
sketch8.addConstraint(Sketcher.Constraint("Coincident", 7, 2, 4, 1))
sketch8.addConstraint(Sketcher.Constraint("Coincident", 8, 2, 9, 1))
sketch8.addConstraint(Sketcher.Constraint("Coincident", 9, 2, 10, 1))
sketch8.addConstraint(Sketcher.Constraint("Coincident", 10, 2, 11, 1))
sketch8.addConstraint(Sketcher.Constraint("Coincident", 11, 2, 8, 1))
sketch8.addConstraint(Sketcher.Constraint("Coincident", 12, 2, 13, 1))
sketch8.addConstraint(Sketcher.Constraint("Coincident", 13, 2, 14, 1))
sketch8.addConstraint(Sketcher.Constraint("Coincident", 14, 2, 15, 1))
sketch8.addConstraint(Sketcher.Constraint("Coincident", 15, 2, 12, 1))
sketch8.addConstraint(Sketcher.Constraint("Vertical", 0))
sketch8.addConstraint(Sketcher.Constraint("Horizontal", 1))
sketch8.addConstraint(Sketcher.Constraint("Vertical", 2))
sketch8.addConstraint(Sketcher.Constraint("Horizontal", 3))
sketch8.addConstraint(Sketcher.Constraint("Vertical", 4))
sketch8.addConstraint(Sketcher.Constraint("Horizontal", 5))
sketch8.addConstraint(Sketcher.Constraint("Vertical", 6))
sketch8.addConstraint(Sketcher.Constraint("Horizontal", 7))
sketch8.addConstraint(Sketcher.Constraint("Vertical", 8))
sketch8.addConstraint(Sketcher.Constraint("Horizontal", 9))
sketch8.addConstraint(Sketcher.Constraint("Vertical", 10))
sketch8.addConstraint(Sketcher.Constraint("Horizontal", 11))
sketch8.addConstraint(Sketcher.Constraint("Vertical", 12))
sketch8.addConstraint(Sketcher.Constraint("Horizontal", 13))
sketch8.addConstraint(Sketcher.Constraint("Vertical", 14))
sketch8.addConstraint(Sketcher.Constraint("Horizontal", 15))
sketch8.addConstraint(Sketcher.Constraint("Equal", 16, 17))
sketch8.addConstraint(Sketcher.Constraint("Equal", 17, 18))
sketch8.addConstraint(Sketcher.Constraint("Equal", 18, 19))
sketch8.addConstraint(Sketcher.Constraint("Equal", 19, 20))
sketch8.addConstraint(Sketcher.Constraint("Equal", 20, 21))
sketch8.addConstraint(Sketcher.Constraint("Equal", 22, 23))
sketch8.addConstraint(Sketcher.Constraint("Horizontal", 17, 3, 18, 3))
sketch8.addConstraint(Sketcher.Constraint("Horizontal", 16, 3, 19, 3))
sketch8.addConstraint(Sketcher.Constraint("Horizontal", 20, 3, 21, 3))
sketch8.addConstraint(Sketcher.Constraint("Horizontal", 22, 3, 23, 3))
sketch8.addConstraint(Sketcher.Constraint("Horizontal", 5, 2, 8, 2))
sketch8.addConstraint(Sketcher.Constraint("Horizontal", 7, 2, 10, 2))
sketch8.addConstraint(Sketcher.Constraint("Horizontal", 1, 2, 12, 2))
sketch8.addConstraint(Sketcher.Constraint("Horizontal", 3, 2, 14, 2))
sketch8.addConstraint(Sketcher.Constraint("Vertical", 16, 3, 17, 3))
sketch8.addConstraint(Sketcher.Constraint("Vertical", 18, 3, 19, 3))
sketch8.addConstraint(Sketcher.Constraint("Vertical", 17, 3, 20, 3))
sketch8.addConstraint(Sketcher.Constraint("Vertical", 19, 3, 21, 3))
sketch8.addConstraint(Sketcher.Constraint("Vertical", 3, 2, 4, 2))
sketch8.addConstraint(Sketcher.Constraint("Vertical", 2, 2, 5, 2))
sketch8.addConstraint(Sketcher.Constraint("Vertical", 11, 2, 12, 2))
sketch8.addConstraint(Sketcher.Constraint("Vertical", 10, 2, 13, 2))
sketch8.addConstraint(Sketcher.Constraint("Equal", 7, 9))
sketch8.addConstraint(Sketcher.Constraint("Equal", 2, 4))
sketch8.addConstraint(Sketcher.Constraint("DistanceY", 0, 2, 0, 1, Q("24 mm")))
sketch8.addConstraint(Sketcher.Constraint("Diameter", 16, Q("2.7051 mm")))
sketch8.addConstraint(Sketcher.Constraint("Diameter", 22, Q("3.6576 mm")))
sketch8.addConstraint(Sketcher.Constraint("DistanceY", 22, 3, 21, 3, Q("25.4 mm")))
sketch8.addConstraint(Sketcher.Constraint("DistanceY", 3, 2, 4, 2, Q("72.65 mm")))
sketch8.addConstraint(Sketcher.Constraint("DistanceX", 22, 3, 23, 3, Q("15.875 mm")))
sketch8.addConstraint(Sketcher.Constraint("DistanceY", 0, 2, 21, 3, Q("60.325 mm")))
sketch8.addConstraint(Sketcher.Constraint("DistanceY", 17, 3, 16, 3, Q("112.7125 mm")))
sketch8.addConstraint(Sketcher.Constraint("DistanceX", 1, 1, 1, 2, Q("9.532925 mm")))
sketch8.addConstraint(Sketcher.Constraint("DistanceX", 22, 3, -1, 1, Q("120.36345 mm")))
sketch8.addConstraint(Sketcher.Constraint("DistanceY", -1, 1, 22, 3, Q("37.382958 mm")))
sketch8.addConstraint(Sketcher.Constraint("DistanceX", 0, 2, -1, 1, Q("221.28066 mm")))
sketch8.addConstraint(Sketcher.Constraint("DistanceX", 9, 2, -1, 1, Q("3.571241 mm")))
sketch8.addConstraint(Sketcher.Constraint("DistanceY", 20, 3, 16, 3, Q("56.35625 mm")))
sketch8.addConstraint(Sketcher.Constraint("DistanceX", 16, 3, -1, 1, Q("23.499623 mm")))
sketch8.addConstraint(Sketcher.Constraint("DistanceX", 18, 3, -1, 1, Q("201.352277 mm")))
sketch8.setExpression("Constraints[56]", "Params.sketch8_height")
pocket2 = body.newObject("PartDesign::Pocket", "Pocket001")
pocket2.Profile = sketch8
pocket2.Type = "ThroughAll"

# Sketch on YZ plane
sketch9 = body.newObject("Sketcher::SketchObject", "Sketch008")
sketch9.AttachmentSupport = (doc.getObject("YZ_Plane"), [""])
sketch9.MapMode = "FlatFace"
sketch9.AttachmentOffset = App.Placement(App.Vector(0, 0, -226.56132), App.Rotation())
sketch9.addGeometry(Part.Circle(App.Vector(34.6, 12.8, 0), App.Vector(0, 0, 1), 1.4), False)
sketch9.addGeometry(Part.Circle(App.Vector(18.7, 12.8, 0), App.Vector(0, 0, 1), 1.4), False)
sketch9.addGeometry(Part.Circle(App.Vector(18.7, 112.8, 0), App.Vector(0, 0, 1), 1.4), False)
sketch9.addGeometry(Part.Circle(App.Vector(34.6, 112.8, 0), App.Vector(0, 0, 1), 1.4), False)
sketch9.addGeometry(Part.Circle(App.Vector(26.6, 112.8, 0), App.Vector(0, 0, 1), 4), False)
sketch9.addGeometry(Part.Circle(App.Vector(26.6, 12.8, 0), App.Vector(0, 0, 1), 4), False)
sketch9.addConstraint(Sketcher.Constraint("Equal", 0, 1))
sketch9.addConstraint(Sketcher.Constraint("Equal", 1, 2))
sketch9.addConstraint(Sketcher.Constraint("Equal", 2, 3))
sketch9.addConstraint(Sketcher.Constraint("Equal", 4, 5))
sketch9.addConstraint(Sketcher.Constraint("Horizontal", 0, 3, 1, 3))
sketch9.addConstraint(Sketcher.Constraint("Horizontal", 2, 3, 3, 3))
sketch9.addConstraint(Sketcher.Constraint("Horizontal", 3, 3, 4, 3))
sketch9.addConstraint(Sketcher.Constraint("Horizontal", 1, 3, 5, 3))
sketch9.addConstraint(Sketcher.Constraint("Vertical", 1, 3, 2, 3))
sketch9.addConstraint(Sketcher.Constraint("Vertical", 0, 3, 3, 3))
sketch9.addConstraint(Sketcher.Constraint("Vertical", 4, 3, 5, 3))
sketch9.addConstraint(Sketcher.Constraint("Diameter", 4, Q("8 mm")))
sketch9.addConstraint(Sketcher.Constraint("Diameter", 0, Q("2.7051 mm")))
sketch9.addConstraint(Sketcher.Constraint("DistanceX", 1, 3, 0, 3, Q("15.9375 mm")))
sketch9.addConstraint(Sketcher.Constraint("DistanceY", -1, 1, 0, 3, Q("12.78067 mm")))
sketch9.addConstraint(Sketcher.Constraint("DistanceX", 2, 3, 4, 3, Q("7.96875 mm")))
sketch9.addConstraint(Sketcher.Constraint("DistanceX", -1, 1, 0, 3, Q("34.594617 mm")))
sketch9.addConstraint(Sketcher.Constraint("DistanceY", -1, 1, 2, 3, Q("112.785246 mm")))
sketch9.setExpression("Constraints[11]", "Params.sketch9_diameter")
pocket3 = body.newObject("PartDesign::Pocket", "Pocket002")
pocket3.Profile = sketch9
pocket3.Type = "ThroughAll"
pocket3.Reversed = True
doc.recompute()

fillet3 = body.newObject("PartDesign::Fillet", "Fillet002")
fillet3.Base = (pocket3, edges_at(pocket3, [
    (-214.931, 44.99, -2.838),
    (-214.931, 44.99, 128.404),
    (-9.921, 44.99, 128.404),
    (-9.921, 44.99, -2.838),
]))
fillet3.setExpression("Radius", "Params.fillet3_radius")

# Sketch on YZ plane
sketch10 = body.newObject("Sketcher::SketchObject", "Sketch009")
sketch10.AttachmentSupport = (doc.getObject("YZ_Plane"), [""])
sketch10.MapMode = "FlatFace"
sketch10.AttachmentOffset = App.Placement(App.Vector(0, 0, -226.56132), App.Rotation())
sketch10.addGeometry(Part.Circle(App.Vector(23.5, 62.8, 0), App.Vector(0, 0, 1), 11.3), False)
sketch10.addGeometry(Part.Circle(App.Vector(39, 78.3, 0), App.Vector(0, 0, 1), 1.5), False)
sketch10.addGeometry(Part.Circle(App.Vector(8, 78.3, 0), App.Vector(0, 0, 1), 1.5), False)
sketch10.addGeometry(Part.Circle(App.Vector(8, 47.3, 0), App.Vector(0, 0, 1), 1.5), False)
sketch10.addGeometry(Part.Circle(App.Vector(39, 47.3, 0), App.Vector(0, 0, 1), 1.5), False)
sketch10.addGeometry(Part.Circle(App.Vector(40.2, 104.1, 0), App.Vector(0, 0, 1), 3.5), False)
sketch10.addConstraint(Sketcher.Constraint("Equal", 1, 2))
sketch10.addConstraint(Sketcher.Constraint("Equal", 2, 3))
sketch10.addConstraint(Sketcher.Constraint("Equal", 3, 4))
sketch10.addConstraint(Sketcher.Constraint("Horizontal", 1, 3, 2, 3))
sketch10.addConstraint(Sketcher.Constraint("Horizontal", 3, 3, 4, 3))
sketch10.addConstraint(Sketcher.Constraint("Vertical", 2, 3, 3, 3))
sketch10.addConstraint(Sketcher.Constraint("Vertical", 1, 3, 4, 3))
sketch10.addConstraint(Sketcher.Constraint("Diameter", 1, Q("3 mm")))
sketch10.addConstraint(Sketcher.Constraint("Diameter", 5, Q("7 mm")))
sketch10.addConstraint(Sketcher.Constraint("Diameter", 0, Q("22.506 mm")))
sketch10.addConstraint(Sketcher.Constraint("DistanceX", -1, 1, 0, 3, Q("23.486732 mm")))
sketch10.addConstraint(Sketcher.Constraint("DistanceY", -1, 1, 1, 3, Q("78.282952 mm")))
sketch10.addConstraint(Sketcher.Constraint("DistanceX", 2, 3, 1, 3, Q("30.999989 mm")))
sketch10.addConstraint(Sketcher.Constraint("DistanceY", 4, 3, 5, 3, Q("56.86461 mm")))
sketch10.addConstraint(Sketcher.Constraint("DistanceY", -1, 1, 0, 3, Q("62.782958 mm")))
sketch10.addConstraint(Sketcher.Constraint("DistanceX", -1, 1, 1, 3, Q("38.986727 mm")))
sketch10.addConstraint(Sketcher.Constraint("DistanceY", -1, 1, 3, 3, Q("47.282964 mm")))
sketch10.addConstraint(Sketcher.Constraint("DistanceX", -1, 1, 5, 3, Q("40.239725 mm")))
sketch10.setExpression("Constraints[7]", "Params.sketch10_diameter")
sketch10.setExpression("Constraints[8]", "Params.sketch10_diameter2")
pocket4 = body.newObject("PartDesign::Pocket", "Pocket003")
pocket4.Profile = sketch10
pocket4.setExpression("Length", "Params.pocket4_length")
pocket4.Reversed = True

doc.recompute()
